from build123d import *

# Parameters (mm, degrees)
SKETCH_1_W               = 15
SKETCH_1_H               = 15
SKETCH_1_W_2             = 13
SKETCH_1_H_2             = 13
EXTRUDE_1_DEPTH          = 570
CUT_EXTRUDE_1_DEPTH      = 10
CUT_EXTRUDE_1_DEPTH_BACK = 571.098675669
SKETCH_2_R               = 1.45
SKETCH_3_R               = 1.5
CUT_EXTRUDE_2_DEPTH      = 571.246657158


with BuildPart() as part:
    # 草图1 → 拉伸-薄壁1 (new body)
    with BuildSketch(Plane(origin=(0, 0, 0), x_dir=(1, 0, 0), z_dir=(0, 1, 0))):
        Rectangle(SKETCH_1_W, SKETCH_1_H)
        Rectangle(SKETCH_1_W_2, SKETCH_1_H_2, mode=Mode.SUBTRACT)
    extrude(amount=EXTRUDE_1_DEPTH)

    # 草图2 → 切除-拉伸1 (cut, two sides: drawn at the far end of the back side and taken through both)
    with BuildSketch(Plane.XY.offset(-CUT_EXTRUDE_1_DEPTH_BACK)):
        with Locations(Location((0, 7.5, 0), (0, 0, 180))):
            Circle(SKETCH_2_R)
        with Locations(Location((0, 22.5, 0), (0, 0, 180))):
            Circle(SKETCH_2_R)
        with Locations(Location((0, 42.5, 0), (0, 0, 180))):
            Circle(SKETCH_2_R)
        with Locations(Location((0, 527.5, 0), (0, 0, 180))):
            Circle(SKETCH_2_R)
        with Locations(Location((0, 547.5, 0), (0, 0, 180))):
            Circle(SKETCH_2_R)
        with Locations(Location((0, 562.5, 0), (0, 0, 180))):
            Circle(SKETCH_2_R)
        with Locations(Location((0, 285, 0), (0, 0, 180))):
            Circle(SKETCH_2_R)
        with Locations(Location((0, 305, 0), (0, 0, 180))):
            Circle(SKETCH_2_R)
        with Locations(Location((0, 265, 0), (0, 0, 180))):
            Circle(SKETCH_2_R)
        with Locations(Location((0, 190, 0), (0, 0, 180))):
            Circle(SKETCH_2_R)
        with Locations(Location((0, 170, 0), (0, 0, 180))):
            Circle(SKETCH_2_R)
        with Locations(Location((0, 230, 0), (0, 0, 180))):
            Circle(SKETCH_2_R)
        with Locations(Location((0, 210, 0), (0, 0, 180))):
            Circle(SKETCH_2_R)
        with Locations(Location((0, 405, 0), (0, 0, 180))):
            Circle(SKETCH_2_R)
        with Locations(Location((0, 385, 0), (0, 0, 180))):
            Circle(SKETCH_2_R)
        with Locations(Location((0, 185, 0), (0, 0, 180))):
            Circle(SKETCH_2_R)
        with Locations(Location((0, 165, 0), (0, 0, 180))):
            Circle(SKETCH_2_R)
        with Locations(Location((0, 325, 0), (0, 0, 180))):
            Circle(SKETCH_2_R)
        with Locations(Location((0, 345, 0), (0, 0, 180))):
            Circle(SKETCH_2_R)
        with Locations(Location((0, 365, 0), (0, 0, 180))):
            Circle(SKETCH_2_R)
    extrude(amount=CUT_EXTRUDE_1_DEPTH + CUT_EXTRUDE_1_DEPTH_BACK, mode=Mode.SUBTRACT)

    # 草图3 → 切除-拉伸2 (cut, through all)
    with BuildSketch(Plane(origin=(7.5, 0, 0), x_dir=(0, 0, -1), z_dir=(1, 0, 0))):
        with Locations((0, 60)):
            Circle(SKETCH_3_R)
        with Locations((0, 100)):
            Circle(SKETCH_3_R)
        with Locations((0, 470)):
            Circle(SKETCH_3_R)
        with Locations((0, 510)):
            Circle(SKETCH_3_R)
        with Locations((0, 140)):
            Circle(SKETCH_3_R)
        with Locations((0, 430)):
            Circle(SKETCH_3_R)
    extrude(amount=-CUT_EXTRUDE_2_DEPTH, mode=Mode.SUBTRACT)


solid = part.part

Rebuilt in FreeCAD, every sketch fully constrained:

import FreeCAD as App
import Part
import Sketcher

V = App.Vector


def add_polygon(sketch, points):
    """Adds a closed chain of lines whose ends are joined by coincident constraints."""
    first, n = sketch.GeometryCount, len(points)
    for a, b in zip(points, points[1:] + points[:1]):
        sketch.addGeometry(Part.LineSegment(App.Vector(*a, 0), App.Vector(*b, 0)), False)
    for i in range(n):
        sketch.addConstraint(Sketcher.Constraint("Coincident", first + i, 2, first + (i + 1) % n, 1))

doc = App.newDocument("Part")
params = doc.addObject("Spreadsheet::Sheet", "Params")
for row, (alias, value) in enumerate([
    ("sketch1_width", "15 mm"),
    ("sketch1_width2", "13 mm"),
    ("pad1_length", "570 mm"),
    ("sketch2_diameter", "2.9 mm"),
    ("sketch3_diameter", "3 mm"),
], start=1):
    params.set(f"A{row}", alias)
    params.set(f"B{row}", "=" + value)
    params.setAlias(f"B{row}", alias)

body = doc.addObject("PartDesign::Body", "Body")

# Sketch on XZ plane
sketch1 = body.newObject("Sketcher::SketchObject", "Sketch")
sketch1.AttachmentSupport = (doc.getObject("XZ_Plane"), [""])
sketch1.MapMode = "FlatFace"
add_polygon(sketch1, [(-8, -8), (-8, 8), (8, 8), (8, -8)])  # lines 0-3
add_polygon(sketch1, [(6, 6), (-6, 6), (-6, -6), (6, -6)])  # lines 4-7
sketch1.addConstraint([
    Sketcher.Constraint("Vertical", 0),
    Sketcher.Constraint("Horizontal", 1),
    Sketcher.Constraint("Vertical", 2),
    Sketcher.Constraint("Horizontal", 3),
    Sketcher.Constraint("Horizontal", 4),
    Sketcher.Constraint("Vertical", 5),
    Sketcher.Constraint("Horizontal", 6),
    Sketcher.Constraint("Vertical", 7),
    Sketcher.Constraint("Symmetric", 0, 2, 2, 2, -1, 1),
    Sketcher.Constraint("Symmetric", 4, 2, 6, 2, -1, 1),
    Sketcher.Constraint("Equal", 3, 0),
    Sketcher.Constraint("Equal", 6, 5),
    Sketcher.Constraint("DistanceX", 1, 1, 1, 2, 15.0),
    Sketcher.Constraint("DistanceX", 4, 2, 4, 1, 13.0),
])
sketch1.setExpression("Constraints[20]", "Params.sketch1_width")
sketch1.setExpression("Constraints[21]", "Params.sketch1_width2")
pad1 = body.newObject("PartDesign::Pad", "Pad")
pad1.Profile = sketch1
pad1.setExpression("Length", "Params.pad1_length")
pad1.Reversed = True

# Sketch on XY plane
sketch2 = body.newObject("Sketcher::SketchObject", "Sketch001")
sketch2.AttachmentSupport = (doc.getObject("XY_Plane"), [""])
sketch2.MapMode = "FlatFace"
sketch2.addGeometry([
    Part.Circle(V(0, 7.5, 0), V(0, 0, 1), 1.4),  # 0
    Part.Circle(V(0, 22.5, 0), V(0, 0, 1), 1.4),  # 1
    Part.Circle(V(0, 42.5, 0), V(0, 0, 1), 1.4),  # 2
    Part.Circle(V(0, 527.5, 0), V(0, 0, 1), 1.4),  # 3
    Part.Circle(V(0, 547.5, 0), V(0, 0, 1), 1.4),  # 4
    Part.Circle(V(0, 562.5, 0), V(0, 0, 1), 1.4),  # 5
    Part.Circle(V(0, 285, 0), V(0, 0, 1), 1.4),  # 6
    Part.Circle(V(0, 305, 0), V(0, 0, 1), 1.4),  # 7
    Part.Circle(V(0, 265, 0), V(0, 0, 1), 1.4),  # 8
    Part.Circle(V(0, 190, 0), V(0, 0, 1), 1.4),  # 9
    Part.Circle(V(0, 170, 0), V(0, 0, 1), 1.4),  # 10
    Part.Circle(V(0, 230, 0), V(0, 0, 1), 1.4),  # 11
    Part.Circle(V(0, 210, 0), V(0, 0, 1), 1.4),  # 12
    Part.Circle(V(0, 405, 0), V(0, 0, 1), 1.4),  # 13
    Part.Circle(V(0, 385, 0), V(0, 0, 1), 1.4),  # 14
    Part.Circle(V(0, 185, 0), V(0, 0, 1), 1.4),  # 15
    Part.Circle(V(0, 165, 0), V(0, 0, 1), 1.4),  # 16
    Part.Circle(V(0, 325, 0), V(0, 0, 1), 1.4),  # 17
    Part.Circle(V(0, 345, 0), V(0, 0, 1), 1.4),  # 18
    Part.Circle(V(0, 365, 0), V(0, 0, 1), 1.4),  # 19
], False)
sketch2.addConstraint([
    Sketcher.Constraint("Equal", 0, 1),
    Sketcher.Constraint("Equal", 1, 2),
    Sketcher.Constraint("Equal", 2, 3),
    Sketcher.Constraint("Equal", 3, 4),
    Sketcher.Constraint("Equal", 4, 5),
    Sketcher.Constraint("Equal", 5, 6),
    Sketcher.Constraint("Equal", 6, 7),
    Sketcher.Constraint("Equal", 7, 8),
    Sketcher.Constraint("Equal", 8, 9),
    Sketcher.Constraint("Equal", 9, 10),
    Sketcher.Constraint("Equal", 10, 11),
    Sketcher.Constraint("Equal", 11, 12),
    Sketcher.Constraint("Equal", 12, 13),
    Sketcher.Constraint("Equal", 13, 14),
    Sketcher.Constraint("Equal", 14, 15),
    Sketcher.Constraint("Equal", 15, 16),
    Sketcher.Constraint("Equal", 16, 17),
    Sketcher.Constraint("Equal", 17, 18),
    Sketcher.Constraint("Equal", 18, 19),
    Sketcher.Constraint("PointOnObject", 0, 3, -2),
    Sketcher.Constraint("PointOnObject", 1, 3, -2),
    Sketcher.Constraint("PointOnObject", 2, 3, -2),
    Sketcher.Constraint("PointOnObject", 3, 3, -2),
    Sketcher.Constraint("PointOnObject", 4, 3, -2),
    Sketcher.Constraint("PointOnObject", 5, 3, -2),
    Sketcher.Constraint("PointOnObject", 6, 3, -2),
    Sketcher.Constraint("PointOnObject", 7, 3, -2),
    Sketcher.Constraint("PointOnObject", 8, 3, -2),
    Sketcher.Constraint("PointOnObject", 9, 3, -2),
    Sketcher.Constraint("PointOnObject", 10, 3, -2),
    Sketcher.Constraint("PointOnObject", 11, 3, -2),
    Sketcher.Constraint("PointOnObject", 12, 3, -2),
    Sketcher.Constraint("PointOnObject", 13, 3, -2),
    Sketcher.Constraint("PointOnObject", 14, 3, -2),
    Sketcher.Constraint("PointOnObject", 15, 3, -2),
    Sketcher.Constraint("PointOnObject", 16, 3, -2),
    Sketcher.Constraint("PointOnObject", 17, 3, -2),
    Sketcher.Constraint("PointOnObject", 18, 3, -2),
    Sketcher.Constraint("PointOnObject", 19, 3, -2),
    Sketcher.Constraint("Diameter", 0, 2.9),
    Sketcher.Constraint("DistanceY", -1, 1, 6, 3, 285.0),
    Sketcher.Constraint("DistanceY", -1, 1, 7, 3, 305.0),
    Sketcher.Constraint("DistanceY", -1, 1, 8, 3, 265.0),
    Sketcher.Constraint("DistanceY", -1, 1, 9, 3, 190.0),
    Sketcher.Constraint("DistanceY", -1, 1, 10, 3, 170.0),
    Sketcher.Constraint("DistanceY", -1, 1, 11, 3, 230.0),
    Sketcher.Constraint("DistanceY", -1, 1, 12, 3, 210.0),
    Sketcher.Constraint("DistanceY", -1, 1, 13, 3, 405.0),
    Sketcher.Constraint("DistanceY", -1, 1, 14, 3, 385.0),
    Sketcher.Constraint("DistanceY", -1, 1, 15, 3, 185.0),
    Sketcher.Constraint("DistanceY", -1, 1, 16, 3, 165.0),
    Sketcher.Constraint("DistanceY", -1, 1, 17, 3, 325.0),
    Sketcher.Constraint("DistanceY", -1, 1, 18, 3, 345.0),
    Sketcher.Constraint("DistanceY", -1, 1, 19, 3, 365.0),
    Sketcher.Constraint("DistanceY", 0, 3, 1, 3, 15.0),
    Sketcher.Constraint("DistanceY", 1, 3, 2, 3, 20.0),
    Sketcher.Constraint("DistanceY", 2, 3, 3, 3, 485.0),
    Sketcher.Constraint("DistanceY", 3, 3, 4, 3, 20.0),
    Sketcher.Constraint("DistanceY", 4, 3, 5, 3, 15.0),
    Sketcher.Constraint("DistanceY", -1, 1, 0, 3, 7.5),
])
sketch2.setExpression("Constraints[39]", "Params.sketch2_diameter")
pocket1 = body.newObject("PartDesign::Pocket", "Pocket")
pocket1.Profile = sketch2
pocket1.Type = "ThroughAll"
pocket1.Midplane = True

# Sketch on YZ plane
sketch3 = body.newObject("Sketcher::SketchObject", "Sketch002")
sketch3.AttachmentSupport = (doc.getObject("YZ_Plane"), [""])
sketch3.MapMode = "FlatFace"
sketch3.AttachmentOffset = App.Placement(V(0, 0, 7.5), App.Rotation())
sketch3.addGeometry([
    Part.Circle(V(60, 0, 0), V(0, 0, 1), 1.5),  # 0
    Part.Circle(V(100, 0, 0), V(0, 0, 1), 1.5),  # 1
    Part.Circle(V(470, 0, 0), V(0, 0, 1), 1.5),  # 2
    Part.Circle(V(510, 0, 0), V(0, 0, 1), 1.5),  # 3
    Part.Circle(V(140, 0, 0), V(0, 0, 1), 1.5),  # 4
    Part.Circle(V(430, 0, 0), V(0, 0, 1), 1.5),  # 5
], False)
sketch3.addConstraint([
    Sketcher.Constraint("Equal", 0, 1),
    Sketcher.Constraint("Equal", 1, 2),
    Sketcher.Constraint("Equal", 2, 3),
    Sketcher.Constraint("Equal", 3, 4),
    Sketcher.Constraint("Equal", 4, 5),
    Sketcher.Constraint("PointOnObject", 0, 3, -1),
    Sketcher.Constraint("PointOnObject", 1, 3, -1),
    Sketcher.Constraint("PointOnObject", 2, 3, -1),
    Sketcher.Constraint("PointOnObject", 3, 3, -1),
    Sketcher.Constraint("PointOnObject", 4, 3, -1),
    Sketcher.Constraint("PointOnObject", 5, 3, -1),
    Sketcher.Constraint("Diameter", 0, 3.0),
    Sketcher.Constraint("DistanceX", -1, 1, 0, 3, 60.0),
    Sketcher.Constraint("DistanceX", -1, 1, 1, 3, 100.0),
    Sketcher.Constraint("DistanceX", -1, 1, 2, 3, 470.0),
    Sketcher.Constraint("DistanceX", -1, 1, 3, 3, 510.0),
    Sketcher.Constraint("DistanceX", -1, 1, 4, 3, 140.0),
    Sketcher.Constraint("DistanceX", -1, 1, 5, 3, 430.0),
])
sketch3.setExpression("Constraints[11]", "Params.sketch3_diameter")
pocket2 = body.newObject("PartDesign::Pocket", "Pocket001")
pocket2.Profile = sketch3
pocket2.Type = "ThroughAll"

doc.recompute()
